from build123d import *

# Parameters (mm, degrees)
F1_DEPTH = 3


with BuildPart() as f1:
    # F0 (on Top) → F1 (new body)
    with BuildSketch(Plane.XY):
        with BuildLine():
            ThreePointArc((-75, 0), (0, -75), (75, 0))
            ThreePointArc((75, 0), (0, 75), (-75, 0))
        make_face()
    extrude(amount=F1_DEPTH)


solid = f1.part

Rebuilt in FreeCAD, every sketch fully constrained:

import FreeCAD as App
import Part
import Sketcher
Q = App.Units.Quantity

doc = App.newDocument("Part")
body = doc.addObject("PartDesign::Body", "Body")

# Sketch on XY plane
sketch1 = doc.addObject("Sketcher::SketchObject", "Sketch")
body.addObject(sketch1)
sketch1.AttachmentSupport = (doc.XY_Plane, [""])
sketch1.MapMode = "FlatFace"
sketch1.addGeometry(Part.Circle(App.Vector(0, 0, 0), App.Vector(0, 0, 1), 75), False)
sketch1.addConstraint([
    Sketcher.Constraint("Coincident", 0, 3, -1, 1),
    Sketcher.Constraint("Diameter", 0, Q("150 mm")),
])
pad1 = doc.addObject("PartDesign::Pad", "Pad")
body.addObject(pad1)
pad1.Profile = sketch1
pad1.Length = 3

doc.recompute()
